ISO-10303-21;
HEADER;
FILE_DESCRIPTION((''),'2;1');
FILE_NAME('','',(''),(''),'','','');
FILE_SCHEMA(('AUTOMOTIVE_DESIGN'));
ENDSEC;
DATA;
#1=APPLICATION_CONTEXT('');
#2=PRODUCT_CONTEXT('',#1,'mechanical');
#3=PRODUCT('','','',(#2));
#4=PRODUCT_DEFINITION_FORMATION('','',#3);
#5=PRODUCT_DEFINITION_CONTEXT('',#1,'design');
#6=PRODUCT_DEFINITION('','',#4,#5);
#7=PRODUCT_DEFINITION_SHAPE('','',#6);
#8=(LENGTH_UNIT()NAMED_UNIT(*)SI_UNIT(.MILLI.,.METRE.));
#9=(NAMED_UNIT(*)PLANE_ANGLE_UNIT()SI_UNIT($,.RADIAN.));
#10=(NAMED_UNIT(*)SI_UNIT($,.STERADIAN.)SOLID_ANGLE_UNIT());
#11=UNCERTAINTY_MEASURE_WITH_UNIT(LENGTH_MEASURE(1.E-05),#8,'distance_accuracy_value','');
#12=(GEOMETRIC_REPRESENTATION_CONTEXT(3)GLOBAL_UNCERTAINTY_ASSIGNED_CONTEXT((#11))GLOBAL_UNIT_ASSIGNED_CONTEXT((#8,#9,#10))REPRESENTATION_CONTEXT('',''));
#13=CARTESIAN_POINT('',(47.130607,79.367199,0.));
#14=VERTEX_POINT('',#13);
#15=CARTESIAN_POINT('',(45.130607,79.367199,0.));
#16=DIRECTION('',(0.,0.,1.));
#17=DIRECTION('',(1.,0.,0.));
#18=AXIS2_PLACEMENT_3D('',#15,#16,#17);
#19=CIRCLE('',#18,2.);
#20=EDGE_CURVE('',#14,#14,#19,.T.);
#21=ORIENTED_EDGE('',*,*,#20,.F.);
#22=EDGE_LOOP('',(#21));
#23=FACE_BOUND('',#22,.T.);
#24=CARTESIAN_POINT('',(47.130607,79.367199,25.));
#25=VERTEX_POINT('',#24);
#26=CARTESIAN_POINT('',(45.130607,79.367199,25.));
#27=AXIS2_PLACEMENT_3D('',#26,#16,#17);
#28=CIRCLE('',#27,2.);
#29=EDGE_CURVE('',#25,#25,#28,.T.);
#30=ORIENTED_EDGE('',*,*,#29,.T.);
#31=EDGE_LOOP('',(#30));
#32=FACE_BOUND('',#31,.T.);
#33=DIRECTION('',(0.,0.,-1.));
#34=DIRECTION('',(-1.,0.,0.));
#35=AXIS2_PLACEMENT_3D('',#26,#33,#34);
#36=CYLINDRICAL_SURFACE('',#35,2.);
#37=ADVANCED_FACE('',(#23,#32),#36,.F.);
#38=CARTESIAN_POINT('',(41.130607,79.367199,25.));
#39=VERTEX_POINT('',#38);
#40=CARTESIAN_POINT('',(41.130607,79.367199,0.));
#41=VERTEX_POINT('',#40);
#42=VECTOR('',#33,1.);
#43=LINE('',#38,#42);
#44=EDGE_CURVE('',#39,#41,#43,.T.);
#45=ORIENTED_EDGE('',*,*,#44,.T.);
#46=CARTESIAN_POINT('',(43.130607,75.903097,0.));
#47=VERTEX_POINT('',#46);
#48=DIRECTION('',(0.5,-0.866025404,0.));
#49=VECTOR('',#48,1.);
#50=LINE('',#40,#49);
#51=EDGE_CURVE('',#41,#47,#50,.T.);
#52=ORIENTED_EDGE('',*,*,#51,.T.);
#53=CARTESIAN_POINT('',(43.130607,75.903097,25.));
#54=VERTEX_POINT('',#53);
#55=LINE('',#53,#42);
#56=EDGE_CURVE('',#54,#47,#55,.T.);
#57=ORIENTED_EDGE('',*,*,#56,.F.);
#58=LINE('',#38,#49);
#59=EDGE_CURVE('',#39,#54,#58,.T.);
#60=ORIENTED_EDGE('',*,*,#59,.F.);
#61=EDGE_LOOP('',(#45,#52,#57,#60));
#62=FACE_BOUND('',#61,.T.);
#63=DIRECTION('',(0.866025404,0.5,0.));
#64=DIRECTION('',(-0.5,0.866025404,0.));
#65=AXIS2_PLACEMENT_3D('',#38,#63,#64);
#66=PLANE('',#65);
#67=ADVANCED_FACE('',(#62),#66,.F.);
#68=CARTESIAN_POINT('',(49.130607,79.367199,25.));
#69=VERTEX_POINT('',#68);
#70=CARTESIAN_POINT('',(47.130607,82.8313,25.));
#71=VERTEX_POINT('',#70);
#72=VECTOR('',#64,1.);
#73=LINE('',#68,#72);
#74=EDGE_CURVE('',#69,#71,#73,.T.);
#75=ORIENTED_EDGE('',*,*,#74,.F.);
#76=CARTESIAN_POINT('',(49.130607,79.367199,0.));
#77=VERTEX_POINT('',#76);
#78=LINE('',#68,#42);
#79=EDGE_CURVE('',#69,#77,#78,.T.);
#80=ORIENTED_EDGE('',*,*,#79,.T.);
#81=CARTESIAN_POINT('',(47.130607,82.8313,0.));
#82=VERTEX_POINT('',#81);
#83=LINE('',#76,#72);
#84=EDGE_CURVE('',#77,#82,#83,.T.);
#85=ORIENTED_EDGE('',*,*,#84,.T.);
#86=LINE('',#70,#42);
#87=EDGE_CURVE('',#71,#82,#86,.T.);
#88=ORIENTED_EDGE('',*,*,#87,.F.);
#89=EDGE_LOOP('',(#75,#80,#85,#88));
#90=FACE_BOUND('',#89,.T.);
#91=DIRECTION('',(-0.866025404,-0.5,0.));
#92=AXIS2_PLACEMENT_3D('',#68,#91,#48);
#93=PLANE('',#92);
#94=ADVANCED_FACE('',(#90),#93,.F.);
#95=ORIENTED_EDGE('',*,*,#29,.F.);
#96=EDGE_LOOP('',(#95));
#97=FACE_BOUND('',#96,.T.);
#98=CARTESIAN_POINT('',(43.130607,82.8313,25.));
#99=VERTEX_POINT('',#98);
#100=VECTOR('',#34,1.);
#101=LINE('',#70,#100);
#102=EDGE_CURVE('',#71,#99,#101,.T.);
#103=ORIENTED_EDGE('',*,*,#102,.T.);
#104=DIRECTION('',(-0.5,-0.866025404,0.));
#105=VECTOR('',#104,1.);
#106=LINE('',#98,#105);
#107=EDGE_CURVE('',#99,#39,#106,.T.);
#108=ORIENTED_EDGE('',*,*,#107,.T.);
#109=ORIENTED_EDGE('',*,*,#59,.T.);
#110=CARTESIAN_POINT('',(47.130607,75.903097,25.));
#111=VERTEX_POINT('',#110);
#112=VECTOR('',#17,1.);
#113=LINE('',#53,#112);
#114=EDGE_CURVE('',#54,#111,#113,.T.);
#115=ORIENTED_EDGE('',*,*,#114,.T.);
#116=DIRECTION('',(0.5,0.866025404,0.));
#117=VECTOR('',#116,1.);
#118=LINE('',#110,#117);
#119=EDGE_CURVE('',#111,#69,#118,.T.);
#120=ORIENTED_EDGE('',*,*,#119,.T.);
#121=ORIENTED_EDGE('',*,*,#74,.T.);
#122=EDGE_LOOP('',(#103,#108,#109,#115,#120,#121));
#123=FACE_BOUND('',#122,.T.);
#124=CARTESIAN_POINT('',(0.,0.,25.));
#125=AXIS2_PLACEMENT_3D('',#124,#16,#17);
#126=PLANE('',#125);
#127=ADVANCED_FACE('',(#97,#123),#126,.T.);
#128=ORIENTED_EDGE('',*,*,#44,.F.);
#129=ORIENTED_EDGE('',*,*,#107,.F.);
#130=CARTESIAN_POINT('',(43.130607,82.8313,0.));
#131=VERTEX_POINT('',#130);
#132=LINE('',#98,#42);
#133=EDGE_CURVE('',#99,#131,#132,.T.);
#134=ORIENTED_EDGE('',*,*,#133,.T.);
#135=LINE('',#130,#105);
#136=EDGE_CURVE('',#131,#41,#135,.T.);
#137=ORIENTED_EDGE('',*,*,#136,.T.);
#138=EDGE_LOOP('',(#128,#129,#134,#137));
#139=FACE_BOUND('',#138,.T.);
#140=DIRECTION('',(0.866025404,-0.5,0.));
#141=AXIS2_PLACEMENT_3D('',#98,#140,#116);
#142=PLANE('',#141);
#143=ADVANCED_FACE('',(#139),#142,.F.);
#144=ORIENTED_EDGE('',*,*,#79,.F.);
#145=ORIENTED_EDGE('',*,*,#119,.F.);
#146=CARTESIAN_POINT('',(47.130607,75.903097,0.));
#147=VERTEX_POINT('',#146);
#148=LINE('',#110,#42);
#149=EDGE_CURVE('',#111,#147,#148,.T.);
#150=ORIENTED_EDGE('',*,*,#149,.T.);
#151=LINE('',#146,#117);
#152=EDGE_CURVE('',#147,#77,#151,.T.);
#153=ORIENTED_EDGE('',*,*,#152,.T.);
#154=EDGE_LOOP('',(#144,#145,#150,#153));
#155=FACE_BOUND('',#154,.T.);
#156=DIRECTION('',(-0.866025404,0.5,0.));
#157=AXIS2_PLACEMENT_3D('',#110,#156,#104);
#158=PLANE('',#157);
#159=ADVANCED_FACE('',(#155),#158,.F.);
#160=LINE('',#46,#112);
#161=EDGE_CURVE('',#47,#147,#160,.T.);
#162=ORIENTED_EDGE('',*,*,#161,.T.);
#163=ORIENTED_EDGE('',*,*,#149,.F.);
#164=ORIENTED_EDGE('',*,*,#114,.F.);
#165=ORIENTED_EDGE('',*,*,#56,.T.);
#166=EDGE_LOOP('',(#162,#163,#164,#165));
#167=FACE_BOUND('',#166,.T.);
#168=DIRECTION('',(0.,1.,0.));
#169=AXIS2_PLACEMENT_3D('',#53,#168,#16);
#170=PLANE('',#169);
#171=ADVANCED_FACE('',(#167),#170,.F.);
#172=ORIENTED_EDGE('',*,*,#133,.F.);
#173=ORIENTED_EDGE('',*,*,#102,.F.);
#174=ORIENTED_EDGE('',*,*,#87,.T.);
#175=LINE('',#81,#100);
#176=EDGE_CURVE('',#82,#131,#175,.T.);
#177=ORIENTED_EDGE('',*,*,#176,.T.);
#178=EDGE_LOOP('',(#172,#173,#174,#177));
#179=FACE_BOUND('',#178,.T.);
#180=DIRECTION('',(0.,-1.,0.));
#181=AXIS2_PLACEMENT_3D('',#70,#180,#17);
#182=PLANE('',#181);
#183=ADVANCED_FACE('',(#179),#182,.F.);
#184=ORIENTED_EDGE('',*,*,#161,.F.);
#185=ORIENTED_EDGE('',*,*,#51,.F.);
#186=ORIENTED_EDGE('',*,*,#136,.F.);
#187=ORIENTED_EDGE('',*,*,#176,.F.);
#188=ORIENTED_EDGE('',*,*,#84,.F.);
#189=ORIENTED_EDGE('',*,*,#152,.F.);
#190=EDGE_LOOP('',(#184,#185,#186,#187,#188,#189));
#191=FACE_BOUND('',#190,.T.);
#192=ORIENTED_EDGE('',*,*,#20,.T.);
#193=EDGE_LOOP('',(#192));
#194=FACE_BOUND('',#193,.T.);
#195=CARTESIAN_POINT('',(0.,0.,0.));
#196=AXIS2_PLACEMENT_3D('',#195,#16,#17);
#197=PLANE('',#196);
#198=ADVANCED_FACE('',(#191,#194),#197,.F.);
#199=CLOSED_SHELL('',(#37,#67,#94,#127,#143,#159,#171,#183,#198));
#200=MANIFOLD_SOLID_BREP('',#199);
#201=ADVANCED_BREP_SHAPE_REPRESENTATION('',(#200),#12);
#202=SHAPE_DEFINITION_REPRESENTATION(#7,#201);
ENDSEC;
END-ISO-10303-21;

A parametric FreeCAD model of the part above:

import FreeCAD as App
import Part
import Sketcher
Q = App.Units.Quantity

doc = App.newDocument("Part")
body = doc.addObject("PartDesign::Body", "Body")

sketch1 = body.newObject("Sketcher::SketchObject", "Sketch")
sketch1.AttachmentSupport = (doc.getObject("XY_Plane"), [""])
sketch1.MapMode = "FlatFace"
sketch1.addGeometry(Part.LineSegment(App.Vector(49.1, 79.4, 0), App.Vector(47.1, 82.8, 0)), False)
sketch1.addGeometry(Part.LineSegment(App.Vector(47.1, 82.8, 0), App.Vector(43.1, 82.8, 0)), False)
sketch1.addGeometry(Part.LineSegment(App.Vector(43.1, 82.8, 0), App.Vector(41.1, 79.4, 0)), False)
sketch1.addGeometry(Part.LineSegment(App.Vector(41.1, 79.4, 0), App.Vector(43.1, 75.9, 0)), False)
sketch1.addGeometry(Part.LineSegment(App.Vector(43.1, 75.9, 0), App.Vector(47.1, 75.9, 0)), False)
sketch1.addGeometry(Part.LineSegment(App.Vector(47.1, 75.9, 0), App.Vector(49.1, 79.4, 0)), False)
sketch1.addGeometry(Part.Circle(App.Vector(45.1, 79.4, 0), App.Vector(0, 0, 1), 2), False)
sketch1.addConstraint(Sketcher.Constraint("Coincident", 0, 2, 1, 1))
sketch1.addConstraint(Sketcher.Constraint("Coincident", 1, 2, 2, 1))
sketch1.addConstraint(Sketcher.Constraint("Coincident", 2, 2, 3, 1))
sketch1.addConstraint(Sketcher.Constraint("Coincident", 3, 2, 4, 1))
sketch1.addConstraint(Sketcher.Constraint("Coincident", 4, 2, 5, 1))
sketch1.addConstraint(Sketcher.Constraint("Coincident", 5, 2, 0, 1))
sketch1.addConstraint(Sketcher.Constraint("Horizontal", 1))
sketch1.addConstraint(Sketcher.Constraint("Horizontal", 4))
sketch1.addConstraint(Sketcher.Constraint("Parallel", 0, 3))
sketch1.addConstraint(Sketcher.Constraint("Parallel", 2, 5))
sketch1.addConstraint(Sketcher.Constraint("Horizontal", 6, 3, 2, 2))
sketch1.addConstraint(Sketcher.Constraint("Horizontal", 2, 2, 5, 2))
sketch1.addConstraint(Sketcher.Constraint("Vertical", 1, 2, 3, 2))
sketch1.addConstraint(Sketcher.Constraint("Vertical", 0, 2, 4, 2))
sketch1.addConstraint(Sketcher.Constraint("Diameter", 6, Q("4 mm")))
sketch1.addConstraint(Sketcher.Constraint("DistanceX", 1, 2, 1, 1, Q("4 mm")))
sketch1.addConstraint(Sketcher.Constraint("Angle", 0, Q("120 deg")))
sketch1.addConstraint(Sketcher.Constraint("Distance", 0, Q("4 mm")))
sketch1.addConstraint(Sketcher.Constraint("DistanceX", 6, 3, 0, 2, Q("2 mm")))
sketch1.addConstraint(Sketcher.Constraint("DistanceY", -1, 1, 6, 3, Q("79.367199 mm")))
sketch1.addConstraint(Sketcher.Constraint("DistanceX", -1, 1, 6, 3, Q("45.130607 mm")))
pad1 = body.newObject("PartDesign::Pad", "Pad")
pad1.Profile = sketch1
pad1.Length = 25

doc.recompute()
